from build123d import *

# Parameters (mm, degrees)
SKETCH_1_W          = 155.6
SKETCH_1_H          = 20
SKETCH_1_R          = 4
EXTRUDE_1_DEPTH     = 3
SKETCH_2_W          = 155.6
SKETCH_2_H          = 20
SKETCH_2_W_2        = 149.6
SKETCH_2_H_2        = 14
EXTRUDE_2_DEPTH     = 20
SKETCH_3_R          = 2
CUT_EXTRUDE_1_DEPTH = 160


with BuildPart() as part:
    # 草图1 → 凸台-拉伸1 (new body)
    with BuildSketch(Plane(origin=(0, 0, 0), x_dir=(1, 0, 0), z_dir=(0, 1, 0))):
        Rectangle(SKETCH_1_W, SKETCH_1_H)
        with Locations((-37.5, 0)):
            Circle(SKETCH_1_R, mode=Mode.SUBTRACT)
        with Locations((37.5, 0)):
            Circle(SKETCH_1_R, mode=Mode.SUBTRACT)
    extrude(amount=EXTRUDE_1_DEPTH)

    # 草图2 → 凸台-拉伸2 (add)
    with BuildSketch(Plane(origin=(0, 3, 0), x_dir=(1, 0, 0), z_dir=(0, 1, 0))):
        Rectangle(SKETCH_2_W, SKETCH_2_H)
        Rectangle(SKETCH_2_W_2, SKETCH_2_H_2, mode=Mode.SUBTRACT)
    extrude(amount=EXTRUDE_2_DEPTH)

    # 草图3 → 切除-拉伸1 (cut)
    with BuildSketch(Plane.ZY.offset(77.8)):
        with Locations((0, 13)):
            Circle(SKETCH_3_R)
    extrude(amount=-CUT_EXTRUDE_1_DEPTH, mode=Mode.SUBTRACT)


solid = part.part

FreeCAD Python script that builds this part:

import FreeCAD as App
import Part
import Sketcher
from FreeCAD import Vector
Q = App.Units.Quantity

doc = App.newDocument("Part")
body = doc.addObject("PartDesign::Body", "Body")

sketch1 = body.newObject("Sketcher::SketchObject", "Sketch")
sketch1.AttachmentSupport = (doc.getObject("XZ_Plane"), [""])
sketch1.MapMode = "FlatFace"
sketch1.addGeometry(Part.LineSegment(Vector(-77.8, -10, 0), Vector(-77.8, 10, 0)), False)
sketch1.addGeometry(Part.LineSegment(Vector(-77.8, 10, 0), Vector(77.8, 10, 0)), False)
sketch1.addGeometry(Part.LineSegment(Vector(77.8, 10, 0), Vector(77.8, -10, 0)), False)
sketch1.addGeometry(Part.LineSegment(Vector(77.8, -10, 0), Vector(-77.8, -10, 0)), False)
sketch1.addGeometry(Part.Circle(Vector(-37.5, 0, 0), Vector(0, 0, 1), 4), False)
sketch1.addGeometry(Part.Circle(Vector(37.5, 0, 0), Vector(0, 0, 1), 4), False)
sketch1.addConstraint(Sketcher.Constraint("Coincident", 0, 2, 1, 1))
sketch1.addConstraint(Sketcher.Constraint("Coincident", 1, 2, 2, 1))
sketch1.addConstraint(Sketcher.Constraint("Coincident", 2, 2, 3, 1))
sketch1.addConstraint(Sketcher.Constraint("Coincident", 3, 2, 0, 1))
sketch1.addConstraint(Sketcher.Constraint("Vertical", 0))
sketch1.addConstraint(Sketcher.Constraint("Horizontal", 1))
sketch1.addConstraint(Sketcher.Constraint("Vertical", 2))
sketch1.addConstraint(Sketcher.Constraint("Horizontal", 3))
sketch1.addConstraint(Sketcher.Constraint("Equal", 4, 5))
sketch1.addConstraint(Sketcher.Constraint("Symmetric", 4, 3, 5, 3, -1, 1))
sketch1.addConstraint(Sketcher.Constraint("Symmetric", 0, 2, 2, 2, -1, 1))
sketch1.addConstraint(Sketcher.Constraint("PointOnObject", 4, 3, -1))
sketch1.addConstraint(Sketcher.Constraint("Diameter", 4, Q("8 mm")))
sketch1.addConstraint(Sketcher.Constraint("DistanceY", 0, 1, 0, 2, Q("20 mm")))
sketch1.addConstraint(Sketcher.Constraint("DistanceX", 1, 1, 1, 2, Q("155.6 mm")))
sketch1.addConstraint(Sketcher.Constraint("DistanceX", 4, 3, 5, 3, Q("75 mm")))
pad1 = body.newObject("PartDesign::Pad", "Pad")
pad1.Profile = sketch1
pad1.Length = 3
pad1.Reversed = True

sketch2 = body.newObject("Sketcher::SketchObject", "Sketch001")
sketch2.AttachmentSupport = (doc.getObject("XZ_Plane"), [""])
sketch2.MapMode = "FlatFace"
sketch2.AttachmentOffset = App.Placement(Vector(0, 0, -3), App.Rotation())
sketch2.addGeometry(Part.LineSegment(Vector(-78, -10, 0), Vector(-78, 10, 0)), False)
sketch2.addGeometry(Part.LineSegment(Vector(-78, 10, 0), Vector(78, 10, 0)), False)
sketch2.addGeometry(Part.LineSegment(Vector(78, 10, 0), Vector(78, -10, 0)), False)
sketch2.addGeometry(Part.LineSegment(Vector(78, -10, 0), Vector(-78, -10, 0)), False)
sketch2.addGeometry(Part.LineSegment(Vector(75, 7, 0), Vector(-75, 7, 0)), False)
sketch2.addGeometry(Part.LineSegment(Vector(-75, 7, 0), Vector(-75, -7, 0)), False)
sketch2.addGeometry(Part.LineSegment(Vector(-75, -7, 0), Vector(75, -7, 0)), False)
sketch2.addGeometry(Part.LineSegment(Vector(75, -7, 0), Vector(75, 7, 0)), False)
sketch2.addConstraint(Sketcher.Constraint("Coincident", 0, 2, 1, 1))
sketch2.addConstraint(Sketcher.Constraint("Coincident", 1, 2, 2, 1))
sketch2.addConstraint(Sketcher.Constraint("Coincident", 2, 2, 3, 1))
sketch2.addConstraint(Sketcher.Constraint("Coincident", 3, 2, 0, 1))
sketch2.addConstraint(Sketcher.Constraint("Coincident", 4, 2, 5, 1))
sketch2.addConstraint(Sketcher.Constraint("Coincident", 5, 2, 6, 1))
sketch2.addConstraint(Sketcher.Constraint("Coincident", 6, 2, 7, 1))
sketch2.addConstraint(Sketcher.Constraint("Coincident", 7, 2, 4, 1))
sketch2.addConstraint(Sketcher.Constraint("Vertical", 0))
sketch2.addConstraint(Sketcher.Constraint("Horizontal", 1))
sketch2.addConstraint(Sketcher.Constraint("Vertical", 2))
sketch2.addConstraint(Sketcher.Constraint("Horizontal", 3))
sketch2.addConstraint(Sketcher.Constraint("Horizontal", 4))
sketch2.addConstraint(Sketcher.Constraint("Vertical", 5))
sketch2.addConstraint(Sketcher.Constraint("Horizontal", 6))
sketch2.addConstraint(Sketcher.Constraint("Vertical", 7))
sketch2.addConstraint(Sketcher.Constraint("Symmetric", 0, 2, 2, 2, -1, 1))
sketch2.addConstraint(Sketcher.Constraint("Symmetric", 4, 2, 6, 2, -1, 1))
sketch2.addConstraint(Sketcher.Constraint("DistanceY", 0, 1, 0, 2, Q("20 mm")))
sketch2.addConstraint(Sketcher.Constraint("DistanceY", 5, 2, 5, 1, Q("14 mm")))
sketch2.addConstraint(Sketcher.Constraint("DistanceX", 1, 1, 1, 2, Q("155.6 mm")))
sketch2.addConstraint(Sketcher.Constraint("DistanceX", 4, 2, 4, 1, Q("149.6 mm")))
pad2 = body.newObject("PartDesign::Pad", "Pad001")
pad2.Profile = sketch2
pad2.Length = 20
pad2.Reversed = True

sketch3 = body.newObject("Sketcher::SketchObject", "Sketch002")
sketch3.AttachmentSupport = (doc.getObject("YZ_Plane"), [""])
sketch3.MapMode = "FlatFace"
sketch3.AttachmentOffset = App.Placement(Vector(0, 0, -77.8), App.Rotation())
sketch3.addGeometry(Part.Circle(Vector(13, 0, 0), Vector(0, 0, 1), 2), False)
sketch3.addConstraint(Sketcher.Constraint("PointOnObject", 0, 3, -1))
sketch3.addConstraint(Sketcher.Constraint("Diameter", 0, Q("4 mm")))
sketch3.addConstraint(Sketcher.Constraint("DistanceX", -1, 1, 0, 3, Q("13 mm")))
pocket1 = body.newObject("PartDesign::Pocket", "Pocket")
pocket1.Profile = sketch3
pocket1.Length = 160
pocket1.Reversed = True

doc.recompute()
